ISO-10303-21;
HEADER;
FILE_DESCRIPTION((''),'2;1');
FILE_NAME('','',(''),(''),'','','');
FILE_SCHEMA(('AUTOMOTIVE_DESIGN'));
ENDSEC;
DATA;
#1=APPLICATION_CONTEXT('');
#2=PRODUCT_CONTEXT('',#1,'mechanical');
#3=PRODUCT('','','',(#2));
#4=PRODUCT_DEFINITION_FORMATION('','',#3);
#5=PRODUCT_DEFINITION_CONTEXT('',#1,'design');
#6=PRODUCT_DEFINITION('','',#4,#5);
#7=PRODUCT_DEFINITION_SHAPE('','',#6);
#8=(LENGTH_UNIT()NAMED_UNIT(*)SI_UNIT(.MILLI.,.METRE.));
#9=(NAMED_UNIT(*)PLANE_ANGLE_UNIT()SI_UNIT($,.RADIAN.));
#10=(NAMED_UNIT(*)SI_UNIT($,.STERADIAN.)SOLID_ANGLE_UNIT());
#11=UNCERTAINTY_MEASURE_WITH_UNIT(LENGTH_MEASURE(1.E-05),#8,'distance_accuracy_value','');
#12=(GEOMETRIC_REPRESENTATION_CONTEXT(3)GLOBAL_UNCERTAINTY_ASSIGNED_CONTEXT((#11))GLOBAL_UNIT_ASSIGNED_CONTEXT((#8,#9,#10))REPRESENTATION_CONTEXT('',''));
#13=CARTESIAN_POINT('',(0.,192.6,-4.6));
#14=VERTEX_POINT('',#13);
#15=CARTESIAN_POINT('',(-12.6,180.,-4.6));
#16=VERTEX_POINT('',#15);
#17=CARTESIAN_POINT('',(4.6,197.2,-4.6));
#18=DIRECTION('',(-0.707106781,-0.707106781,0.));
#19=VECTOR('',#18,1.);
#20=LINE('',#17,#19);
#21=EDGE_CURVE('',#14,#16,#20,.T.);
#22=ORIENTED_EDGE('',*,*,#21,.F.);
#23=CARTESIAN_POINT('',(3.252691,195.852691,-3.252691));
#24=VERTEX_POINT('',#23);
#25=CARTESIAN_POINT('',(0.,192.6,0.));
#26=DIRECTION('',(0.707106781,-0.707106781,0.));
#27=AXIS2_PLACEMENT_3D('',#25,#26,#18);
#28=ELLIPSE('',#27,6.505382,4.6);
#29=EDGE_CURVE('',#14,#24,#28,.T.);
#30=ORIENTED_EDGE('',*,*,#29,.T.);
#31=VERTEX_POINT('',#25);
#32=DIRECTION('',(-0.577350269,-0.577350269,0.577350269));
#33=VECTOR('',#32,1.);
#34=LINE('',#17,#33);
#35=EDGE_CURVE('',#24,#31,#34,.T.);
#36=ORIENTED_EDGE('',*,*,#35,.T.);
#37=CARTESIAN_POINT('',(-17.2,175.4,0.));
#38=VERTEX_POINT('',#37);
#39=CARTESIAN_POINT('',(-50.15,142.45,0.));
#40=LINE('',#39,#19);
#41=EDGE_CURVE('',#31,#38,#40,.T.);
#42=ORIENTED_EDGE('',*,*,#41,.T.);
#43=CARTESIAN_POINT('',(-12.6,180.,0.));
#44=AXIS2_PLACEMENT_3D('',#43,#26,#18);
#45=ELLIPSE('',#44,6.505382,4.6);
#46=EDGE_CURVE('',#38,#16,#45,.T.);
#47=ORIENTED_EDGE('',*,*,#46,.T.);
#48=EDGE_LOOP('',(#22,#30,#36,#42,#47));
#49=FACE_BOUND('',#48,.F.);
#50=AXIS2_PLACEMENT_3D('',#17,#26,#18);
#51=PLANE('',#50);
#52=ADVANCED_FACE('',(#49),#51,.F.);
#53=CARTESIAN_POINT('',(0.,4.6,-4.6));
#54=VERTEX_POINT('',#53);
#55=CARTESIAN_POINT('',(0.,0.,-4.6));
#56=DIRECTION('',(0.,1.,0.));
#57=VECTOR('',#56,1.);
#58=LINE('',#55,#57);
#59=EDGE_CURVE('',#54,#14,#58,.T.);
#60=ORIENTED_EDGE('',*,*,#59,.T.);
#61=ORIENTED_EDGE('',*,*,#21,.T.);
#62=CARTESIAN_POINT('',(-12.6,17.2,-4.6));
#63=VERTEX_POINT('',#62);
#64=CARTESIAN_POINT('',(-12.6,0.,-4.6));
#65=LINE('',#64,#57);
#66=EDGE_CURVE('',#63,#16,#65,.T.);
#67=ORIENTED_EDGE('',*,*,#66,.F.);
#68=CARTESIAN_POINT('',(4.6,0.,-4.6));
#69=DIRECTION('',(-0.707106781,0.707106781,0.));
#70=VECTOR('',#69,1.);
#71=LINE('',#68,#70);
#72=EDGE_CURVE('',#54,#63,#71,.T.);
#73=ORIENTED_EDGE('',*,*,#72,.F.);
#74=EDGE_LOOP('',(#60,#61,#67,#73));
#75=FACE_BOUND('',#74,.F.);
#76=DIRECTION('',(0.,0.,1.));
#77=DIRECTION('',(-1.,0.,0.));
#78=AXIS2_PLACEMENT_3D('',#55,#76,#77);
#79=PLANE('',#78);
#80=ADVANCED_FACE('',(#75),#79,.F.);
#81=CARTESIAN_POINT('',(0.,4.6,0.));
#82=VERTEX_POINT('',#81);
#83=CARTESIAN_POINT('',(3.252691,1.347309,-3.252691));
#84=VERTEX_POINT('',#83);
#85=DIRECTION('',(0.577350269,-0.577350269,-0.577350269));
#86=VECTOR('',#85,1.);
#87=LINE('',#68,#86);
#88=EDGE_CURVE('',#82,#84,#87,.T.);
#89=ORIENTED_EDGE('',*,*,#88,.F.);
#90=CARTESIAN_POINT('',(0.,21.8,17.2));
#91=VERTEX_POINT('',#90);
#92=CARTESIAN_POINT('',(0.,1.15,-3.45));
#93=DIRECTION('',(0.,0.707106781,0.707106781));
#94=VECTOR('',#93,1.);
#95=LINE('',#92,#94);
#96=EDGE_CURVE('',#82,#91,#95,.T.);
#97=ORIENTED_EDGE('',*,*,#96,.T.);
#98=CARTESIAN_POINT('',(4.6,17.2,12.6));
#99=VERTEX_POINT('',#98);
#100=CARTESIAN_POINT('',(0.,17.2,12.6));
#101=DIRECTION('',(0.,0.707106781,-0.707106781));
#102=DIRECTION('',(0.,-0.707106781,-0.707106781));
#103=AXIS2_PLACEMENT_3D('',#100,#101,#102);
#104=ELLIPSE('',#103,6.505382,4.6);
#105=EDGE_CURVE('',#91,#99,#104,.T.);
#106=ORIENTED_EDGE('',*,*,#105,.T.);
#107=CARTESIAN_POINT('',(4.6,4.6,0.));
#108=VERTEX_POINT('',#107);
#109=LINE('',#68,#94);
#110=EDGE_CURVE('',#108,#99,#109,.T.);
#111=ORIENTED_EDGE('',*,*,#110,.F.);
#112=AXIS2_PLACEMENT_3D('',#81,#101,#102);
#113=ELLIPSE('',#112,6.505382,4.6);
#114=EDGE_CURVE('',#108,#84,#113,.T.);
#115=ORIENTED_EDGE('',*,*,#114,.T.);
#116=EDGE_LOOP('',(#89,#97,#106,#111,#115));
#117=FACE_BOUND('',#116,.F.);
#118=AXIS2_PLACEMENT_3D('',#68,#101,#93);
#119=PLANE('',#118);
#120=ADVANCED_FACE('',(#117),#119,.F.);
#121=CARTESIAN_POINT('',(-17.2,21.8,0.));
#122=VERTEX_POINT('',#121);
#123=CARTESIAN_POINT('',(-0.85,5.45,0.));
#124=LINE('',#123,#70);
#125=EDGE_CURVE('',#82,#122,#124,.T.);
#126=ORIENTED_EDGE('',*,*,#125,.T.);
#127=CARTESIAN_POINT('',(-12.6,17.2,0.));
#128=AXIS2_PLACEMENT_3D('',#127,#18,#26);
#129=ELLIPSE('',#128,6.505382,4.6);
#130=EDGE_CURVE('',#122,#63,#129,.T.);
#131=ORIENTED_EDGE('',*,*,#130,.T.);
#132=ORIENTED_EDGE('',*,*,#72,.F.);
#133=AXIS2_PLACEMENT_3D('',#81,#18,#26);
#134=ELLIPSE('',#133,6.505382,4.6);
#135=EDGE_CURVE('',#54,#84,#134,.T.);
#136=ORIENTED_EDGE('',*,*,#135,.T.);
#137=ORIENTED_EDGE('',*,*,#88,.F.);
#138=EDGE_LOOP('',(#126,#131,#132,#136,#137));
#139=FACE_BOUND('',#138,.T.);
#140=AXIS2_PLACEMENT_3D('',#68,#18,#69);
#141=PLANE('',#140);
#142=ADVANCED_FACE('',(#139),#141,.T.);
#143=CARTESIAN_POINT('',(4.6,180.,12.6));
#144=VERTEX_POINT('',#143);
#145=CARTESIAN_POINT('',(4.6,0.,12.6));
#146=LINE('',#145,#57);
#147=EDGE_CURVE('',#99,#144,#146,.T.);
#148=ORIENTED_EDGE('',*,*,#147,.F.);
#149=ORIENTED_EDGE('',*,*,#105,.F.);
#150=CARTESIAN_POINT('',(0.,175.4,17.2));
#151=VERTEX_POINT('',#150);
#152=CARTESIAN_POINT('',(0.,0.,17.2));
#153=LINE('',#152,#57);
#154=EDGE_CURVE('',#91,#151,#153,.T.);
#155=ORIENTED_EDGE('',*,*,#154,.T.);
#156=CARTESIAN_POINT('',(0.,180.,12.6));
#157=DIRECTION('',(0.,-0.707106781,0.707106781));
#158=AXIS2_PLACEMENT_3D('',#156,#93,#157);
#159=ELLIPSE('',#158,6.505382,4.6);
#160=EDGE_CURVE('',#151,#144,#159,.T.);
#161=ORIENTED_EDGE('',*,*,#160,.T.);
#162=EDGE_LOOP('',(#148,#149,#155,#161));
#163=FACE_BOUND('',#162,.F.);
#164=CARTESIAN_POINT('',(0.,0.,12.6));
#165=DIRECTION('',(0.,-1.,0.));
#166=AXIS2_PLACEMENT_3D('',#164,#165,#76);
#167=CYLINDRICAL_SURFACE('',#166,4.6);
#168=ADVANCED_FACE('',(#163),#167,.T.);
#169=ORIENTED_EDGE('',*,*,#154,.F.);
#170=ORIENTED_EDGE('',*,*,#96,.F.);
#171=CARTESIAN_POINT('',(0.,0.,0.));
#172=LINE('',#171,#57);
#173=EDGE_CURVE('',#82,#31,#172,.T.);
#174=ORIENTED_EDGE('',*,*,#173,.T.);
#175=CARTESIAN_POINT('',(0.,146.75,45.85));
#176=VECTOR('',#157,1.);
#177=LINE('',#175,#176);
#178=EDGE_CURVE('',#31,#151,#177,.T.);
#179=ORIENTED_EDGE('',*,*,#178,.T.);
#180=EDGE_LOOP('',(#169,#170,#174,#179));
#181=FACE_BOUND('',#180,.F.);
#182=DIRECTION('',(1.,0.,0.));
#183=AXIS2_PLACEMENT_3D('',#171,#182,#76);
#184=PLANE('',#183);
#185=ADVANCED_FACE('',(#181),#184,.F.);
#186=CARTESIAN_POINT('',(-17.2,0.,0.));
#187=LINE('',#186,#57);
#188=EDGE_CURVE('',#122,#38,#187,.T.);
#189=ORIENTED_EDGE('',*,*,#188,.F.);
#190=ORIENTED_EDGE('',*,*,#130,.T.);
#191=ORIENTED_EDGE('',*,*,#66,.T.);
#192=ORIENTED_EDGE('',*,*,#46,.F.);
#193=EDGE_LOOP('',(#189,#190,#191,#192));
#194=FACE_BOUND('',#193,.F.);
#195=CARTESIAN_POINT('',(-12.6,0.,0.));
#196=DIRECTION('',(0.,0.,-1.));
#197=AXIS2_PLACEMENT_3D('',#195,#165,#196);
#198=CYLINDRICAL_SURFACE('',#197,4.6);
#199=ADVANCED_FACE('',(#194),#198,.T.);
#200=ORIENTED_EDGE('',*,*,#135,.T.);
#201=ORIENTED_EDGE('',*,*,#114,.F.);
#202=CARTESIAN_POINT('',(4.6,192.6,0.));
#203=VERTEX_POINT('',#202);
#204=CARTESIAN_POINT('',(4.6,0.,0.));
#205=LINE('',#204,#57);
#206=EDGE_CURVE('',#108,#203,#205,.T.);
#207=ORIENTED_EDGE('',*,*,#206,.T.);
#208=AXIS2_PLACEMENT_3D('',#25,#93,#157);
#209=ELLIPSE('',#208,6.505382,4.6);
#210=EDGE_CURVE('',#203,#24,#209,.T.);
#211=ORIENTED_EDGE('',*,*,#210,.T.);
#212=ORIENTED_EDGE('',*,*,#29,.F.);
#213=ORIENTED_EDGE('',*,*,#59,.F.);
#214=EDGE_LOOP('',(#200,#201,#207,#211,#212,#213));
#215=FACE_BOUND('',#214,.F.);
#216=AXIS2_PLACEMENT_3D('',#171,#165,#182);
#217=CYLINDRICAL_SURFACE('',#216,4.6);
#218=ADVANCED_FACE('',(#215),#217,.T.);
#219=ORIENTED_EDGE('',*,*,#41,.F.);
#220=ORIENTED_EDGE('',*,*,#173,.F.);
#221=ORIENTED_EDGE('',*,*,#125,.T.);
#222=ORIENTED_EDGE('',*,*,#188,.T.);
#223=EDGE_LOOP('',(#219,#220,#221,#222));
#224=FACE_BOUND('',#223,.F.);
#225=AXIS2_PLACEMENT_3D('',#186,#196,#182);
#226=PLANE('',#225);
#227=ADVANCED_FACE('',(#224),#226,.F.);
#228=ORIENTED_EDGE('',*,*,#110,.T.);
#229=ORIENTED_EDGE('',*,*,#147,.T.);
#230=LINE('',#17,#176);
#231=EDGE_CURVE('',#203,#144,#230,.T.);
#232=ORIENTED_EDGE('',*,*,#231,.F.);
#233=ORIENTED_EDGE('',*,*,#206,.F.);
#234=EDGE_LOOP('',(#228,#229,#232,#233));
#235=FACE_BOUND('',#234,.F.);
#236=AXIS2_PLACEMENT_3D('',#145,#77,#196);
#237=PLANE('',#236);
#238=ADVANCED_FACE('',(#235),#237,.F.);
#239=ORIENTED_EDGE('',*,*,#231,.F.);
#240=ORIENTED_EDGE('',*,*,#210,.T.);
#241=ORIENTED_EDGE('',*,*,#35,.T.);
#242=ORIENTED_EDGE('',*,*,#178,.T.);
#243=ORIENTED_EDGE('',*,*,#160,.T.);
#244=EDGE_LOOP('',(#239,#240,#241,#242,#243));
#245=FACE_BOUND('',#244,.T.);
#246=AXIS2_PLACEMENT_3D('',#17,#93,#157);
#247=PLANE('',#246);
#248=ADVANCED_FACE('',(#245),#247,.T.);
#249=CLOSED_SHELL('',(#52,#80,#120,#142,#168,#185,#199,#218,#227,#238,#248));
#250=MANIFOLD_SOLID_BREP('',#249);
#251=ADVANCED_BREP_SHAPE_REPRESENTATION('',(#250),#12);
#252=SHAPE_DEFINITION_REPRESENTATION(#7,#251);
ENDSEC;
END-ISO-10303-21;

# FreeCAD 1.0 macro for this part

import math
import FreeCAD as App
import Part
import Sketcher
from FreeCAD import Vector

doc = App.newDocument("Part")
body = doc.addObject("PartDesign::Body", "Body")

# Sketch on XZ plane
sketch1 = body.newObject("Sketcher::SketchObject", "Sketch")
sketch1.AttachmentSupport = (doc.getObject("XZ_Plane"), [""])
sketch1.MapMode = "FlatFace"
sketch1.addGeometry(Part.ArcOfCircle(Part.Circle(Vector(0, 12.6, 0), Vector(0, 0, 1), 4.6), math.radians(0), math.radians(90)), False)
sketch1.addGeometry(Part.LineSegment(Vector(4.6, 12.6, 0), Vector(4.6, 0, 0)), False)
sketch1.addGeometry(Part.ArcOfCircle(Part.Circle(Vector(0, 0, 0), Vector(0, 0, 1), 4.6), math.radians(-90), math.radians(0)), False)
sketch1.addGeometry(Part.LineSegment(Vector(0, -4.6, 0), Vector(-12.6, -4.6, 0)), False)
sketch1.addGeometry(Part.ArcOfCircle(Part.Circle(Vector(-12.6, 0, 0), Vector(0, 0, 1), 4.6), math.radians(180), math.radians(270)), False)
sketch1.addGeometry(Part.LineSegment(Vector(-17.2, 0, 0), Vector(0, 0, 0)), False)
sketch1.addGeometry(Part.LineSegment(Vector(0, 0, 0), Vector(0, 17.2, 0)), False)
sketch1.addConstraint(Sketcher.Constraint("Tangent", 0, 1, 1, 1))
sketch1.addConstraint(Sketcher.Constraint("Tangent", 1, 2, 2, 2))
sketch1.addConstraint(Sketcher.Constraint("Tangent", 2, 1, 3, 1))
sketch1.addConstraint(Sketcher.Constraint("Tangent", 3, 2, 4, 2))
sketch1.addConstraint(Sketcher.Constraint("Coincident", 4, 1, 5, 1))
sketch1.addConstraint(Sketcher.Constraint("Coincident", 5, 2, 6, 1))
sketch1.addConstraint(Sketcher.Constraint("Coincident", 6, 2, 0, 2))
sketch1.addConstraint(Sketcher.Constraint("Vertical", 1))
sketch1.addConstraint(Sketcher.Constraint("Horizontal", 3))
sketch1.addConstraint(Sketcher.Constraint("Horizontal", 5))
sketch1.addConstraint(Sketcher.Constraint("Vertical", 6))
sketch1.addConstraint(Sketcher.Constraint("Coincident", 2, 3, -1, 1))
sketch1.addConstraint(Sketcher.Constraint("Coincident", 5, 2, -1, 1))
sketch1.addConstraint(Sketcher.Constraint("Equal", 0, 2))
sketch1.addConstraint(Sketcher.Constraint("Equal", 2, 4))
sketch1.addConstraint(Sketcher.Constraint("Equal", 3, 1))
sketch1.addConstraint(Sketcher.Constraint("Radius", 0, 4.6))
sketch1.addConstraint(Sketcher.Constraint("DistanceX", 3, 2, 3, 1, 12.6))
pad1 = body.newObject("PartDesign::Pad", "Pad")
pad1.Profile = sketch1
pad1.Length = 197.2
pad1.Reversed = True

# Sketch on XY plane
sketch2 = body.newObject("Sketcher::SketchObject", "Sketch001")
sketch2.AttachmentSupport = (doc.getObject("XY_Plane"), [""])
sketch2.MapMode = "FlatFace"
sketch2.AttachmentOffset = App.Placement(Vector(0, 0, -4.6), App.Rotation())
sketch2.addGeometry(Part.LineSegment(Vector(4.6, 197.2, 0), Vector(-17.2, 175.4, 0)), False)
sketch2.addGeometry(Part.LineSegment(Vector(-17.2, 175.4, 0), Vector(-17.2, 197.2, 0)), False)
sketch2.addGeometry(Part.LineSegment(Vector(-17.2, 197.2, 0), Vector(4.6, 197.2, 0)), False)
sketch2.addGeometry(Part.LineSegment(Vector(-17.2, 21.8, 0), Vector(4.6, 0, 0)), False)
sketch2.addGeometry(Part.LineSegment(Vector(4.6, 0, 0), Vector(-17.2, 0, 0)), False)
sketch2.addGeometry(Part.LineSegment(Vector(-17.2, 0, 0), Vector(-17.2, 21.8, 0)), False)
sketch2.addConstraint(Sketcher.Constraint("Coincident", 0, 2, 1, 1))
sketch2.addConstraint(Sketcher.Constraint("Coincident", 1, 2, 2, 1))
sketch2.addConstraint(Sketcher.Constraint("Coincident", 2, 2, 0, 1))
sketch2.addConstraint(Sketcher.Constraint("Coincident", 3, 2, 4, 1))
sketch2.addConstraint(Sketcher.Constraint("Coincident", 4, 2, 5, 1))
sketch2.addConstraint(Sketcher.Constraint("Coincident", 5, 2, 3, 1))
sketch2.addConstraint(Sketcher.Constraint("Vertical", 1))
sketch2.addConstraint(Sketcher.Constraint("Horizontal", 2))
sketch2.addConstraint(Sketcher.Constraint("Horizontal", 4))
sketch2.addConstraint(Sketcher.Constraint("Vertical", 5))
sketch2.addConstraint(Sketcher.Constraint("PointOnObject", 3, 2, -1))
sketch2.addConstraint(Sketcher.Constraint("Perpendicular", 0, 3))
sketch2.addConstraint(Sketcher.Constraint("Vertical", 2, 2, 3, 2))
sketch2.addConstraint(Sketcher.Constraint("Vertical", 1, 2, 4, 2))
sketch2.addConstraint(Sketcher.Constraint("Equal", 4, 1))
sketch2.addConstraint(Sketcher.Constraint("DistanceX", 2, 1, 2, 2, 21.8))
sketch2.addConstraint(Sketcher.Constraint("DistanceX", 0, 2, -1, 1, 17.2))
sketch2.addConstraint(Sketcher.Constraint("DistanceY", -1, 1, 0, 2, 175.4))
pocket1 = body.newObject("PartDesign::Pocket", "Pocket")
pocket1.Profile = sketch2
pocket1.Type = "ThroughAll"
pocket1.Reversed = True

# Sketch on YZ plane
sketch3 = body.newObject("Sketcher::SketchObject", "Sketch002")
sketch3.AttachmentSupport = (doc.getObject("YZ_Plane"), [""])
sketch3.MapMode = "FlatFace"
sketch3.AttachmentOffset = App.Placement(Vector(0, 0, 4.6), App.Rotation())
sketch3.addGeometry(Part.LineSegment(Vector(0, 17.2, 0), Vector(0, -4.6, 0)), False)
sketch3.addGeometry(Part.LineSegment(Vector(0, -4.6, 0), Vector(21.8, 17.2, 0)), False)
sketch3.addGeometry(Part.LineSegment(Vector(21.8, 17.2, 0), Vector(0, 17.2, 0)), False)
sketch3.addGeometry(Part.LineSegment(Vector(197.2, 17.2, 0), Vector(175.4, 17.2, 0)), False)
sketch3.addGeometry(Part.LineSegment(Vector(175.4, 17.2, 0), Vector(197.2, -4.6, 0)), False)
sketch3.addGeometry(Part.LineSegment(Vector(197.2, -4.6, 0), Vector(197.2, 17.2, 0)), False)
sketch3.addConstraint(Sketcher.Constraint("Coincident", 0, 2, 1, 1))
sketch3.addConstraint(Sketcher.Constraint("Coincident", 1, 2, 2, 1))
sketch3.addConstraint(Sketcher.Constraint("Coincident", 2, 2, 0, 1))
sketch3.addConstraint(Sketcher.Constraint("Coincident", 3, 2, 4, 1))
sketch3.addConstraint(Sketcher.Constraint("Coincident", 4, 2, 5, 1))
sketch3.addConstraint(Sketcher.Constraint("Coincident", 5, 2, 3, 1))
sketch3.addConstraint(Sketcher.Constraint("Vertical", 0))
sketch3.addConstraint(Sketcher.Constraint("Horizontal", 2))
sketch3.addConstraint(Sketcher.Constraint("Horizontal", 3))
sketch3.addConstraint(Sketcher.Constraint("Vertical", 5))
sketch3.addConstraint(Sketcher.Constraint("PointOnObject", 0, 2, -2))
sketch3.addConstraint(Sketcher.Constraint("Perpendicular", 1, 4))
sketch3.addConstraint(Sketcher.Constraint("Horizontal", 2, 2, 3, 2))
sketch3.addConstraint(Sketcher.Constraint("Horizontal", 0, 2, 4, 2))
sketch3.addConstraint(Sketcher.Constraint("Equal", 2, 3))
sketch3.addConstraint(Sketcher.Constraint("DistanceX", 2, 2, 2, 1, 21.8))
sketch3.addConstraint(Sketcher.Constraint("DistanceY", 0, 2, -1, 1, 4.6))
sketch3.addConstraint(Sketcher.Constraint("DistanceX", -1, 1, 3, 2, 175.4))
pocket2 = body.newObject("PartDesign::Pocket", "Pocket001")
pocket2.Profile = sketch3
pocket2.Type = "ThroughAll"

doc.recompute()
